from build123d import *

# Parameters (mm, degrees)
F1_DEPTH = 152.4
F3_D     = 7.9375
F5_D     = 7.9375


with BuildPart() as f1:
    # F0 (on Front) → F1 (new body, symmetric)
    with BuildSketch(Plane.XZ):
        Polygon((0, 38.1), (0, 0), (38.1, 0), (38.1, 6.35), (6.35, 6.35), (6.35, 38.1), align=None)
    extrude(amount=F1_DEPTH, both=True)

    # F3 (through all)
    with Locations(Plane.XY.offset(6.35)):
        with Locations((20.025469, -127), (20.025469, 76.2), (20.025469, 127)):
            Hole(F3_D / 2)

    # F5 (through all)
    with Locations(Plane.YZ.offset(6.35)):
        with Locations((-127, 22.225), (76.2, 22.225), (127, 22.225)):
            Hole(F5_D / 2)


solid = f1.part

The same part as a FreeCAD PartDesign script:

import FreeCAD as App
import Part
import Sketcher

V = App.Vector
Q = App.Units.Quantity


def add_polygon(sketch, points):
    """Adds a closed chain of lines whose ends are joined by coincident constraints."""
    first, n = sketch.GeometryCount, len(points)
    for a, b in zip(points, points[1:] + points[:1]):
        sketch.addGeometry(Part.LineSegment(App.Vector(*a, 0), App.Vector(*b, 0)), False)
    for i in range(n):
        sketch.addConstraint(Sketcher.Constraint("Coincident", first + i, 2, first + (i + 1) % n, 1))

doc = App.newDocument("Part")
body = doc.addObject("PartDesign::Body", "Body")

# Sketch on XZ plane
sketch1 = doc.addObject("Sketcher::SketchObject", "Sketch")
body.addObject(sketch1)
sketch1.AttachmentSupport = (doc.XZ_Plane, [""])
sketch1.MapMode = "FlatFace"
add_polygon(sketch1, [(0, 38.1), (0, 0), (38.1, 0), (38.1, 6.35), (6.35, 6.35), (6.35, 38.1)])  # lines 0-5
sketch1.addConstraint(Sketcher.Constraint("Vertical", 0))
sketch1.addConstraint(Sketcher.Constraint("Horizontal", 1))
sketch1.addConstraint(Sketcher.Constraint("Vertical", 2))
sketch1.addConstraint(Sketcher.Constraint("Horizontal", 3))
sketch1.addConstraint(Sketcher.Constraint("Vertical", 4))
sketch1.addConstraint(Sketcher.Constraint("Horizontal", 5))
sketch1.addConstraint(Sketcher.Constraint("Coincident", 0, 2, -1, 1))
sketch1.addConstraint(Sketcher.Constraint("Equal", 1, 0))
sketch1.addConstraint(Sketcher.Constraint("Equal", 5, 2))
sketch1.addConstraint(Sketcher.Constraint("DistanceX", 1, 1, 1, 2, Q("1.5 in")))
sketch1.addConstraint(Sketcher.Constraint("DistanceX", 3, 2, 3, 1, Q("1.25 in")))
pad1 = doc.addObject("PartDesign::Pad", "Pad")
body.addObject(pad1)
pad1.Profile = sketch1
pad1.Length = Q("12 in")
pad1.Midplane = True

# Sketch on XY plane
sketch2 = doc.addObject("Sketcher::SketchObject", "Sketch001")
body.addObject(sketch2)
sketch2.AttachmentSupport = (doc.XY_Plane, [""])
sketch2.MapMode = "FlatFace"
sketch2.AttachmentOffset = App.Placement(V(0, 0, 0.25 * 25.4), App.Rotation())
sketch2.addGeometry(Part.Circle(V(20.025469, -127, 0), V(0, 0, 1), 3.96875), False)
sketch2.addGeometry(Part.Circle(V(20.025469, 76.2, 0), V(0, 0, 1), 3.96875), False)
sketch2.addGeometry(Part.Circle(V(20.025469, 127, 0), V(0, 0, 1), 3.96875), False)
sketch2.addConstraint(Sketcher.Constraint("Equal", 0, 1))
sketch2.addConstraint(Sketcher.Constraint("Equal", 1, 2))
sketch2.addConstraint(Sketcher.Constraint("Symmetric", 0, 3, 2, 3, -1))
sketch2.addConstraint(Sketcher.Constraint("Vertical", 0, 3, 1, 3))
sketch2.addConstraint(Sketcher.Constraint("Diameter", 0, Q("0.3125 in")))
sketch2.addConstraint(Sketcher.Constraint("DistanceY", 0, 3, -1, 1, Q("5 in")))
sketch2.addConstraint(Sketcher.Constraint("DistanceY", -1, 1, 1, 3, Q("3 in")))
sketch2.addConstraint(Sketcher.Constraint("DistanceX", -1, 1, 0, 3, Q("20.025469 mm")))
doc.recompute()
hole = doc.addObject("PartDesign::Hole", "Hole")
body.addObject(hole)
hole.Profile = sketch2
hole.ThreadType = "None"
hole.Diameter = Q("0.3125 in")
hole.DepthType = "ThroughAll"

# Sketch on YZ plane
sketch3 = doc.addObject("Sketcher::SketchObject", "Sketch002")
body.addObject(sketch3)
sketch3.AttachmentSupport = (doc.YZ_Plane, [""])
sketch3.MapMode = "FlatFace"
sketch3.AttachmentOffset = App.Placement(V(0, 0, 0.25 * 25.4), App.Rotation())
sketch3.addGeometry(Part.Circle(V(-127, 22.225, 0), V(0, 0, 1), 3.96875), False)
sketch3.addGeometry(Part.Circle(V(76.2, 22.225, 0), V(0, 0, 1), 3.96875), False)
sketch3.addGeometry(Part.Circle(V(127, 22.225, 0), V(0, 0, 1), 3.96875), False)
sketch3.addConstraint(Sketcher.Constraint("Equal", 0, 1))
sketch3.addConstraint(Sketcher.Constraint("Equal", 1, 2))
sketch3.addConstraint(Sketcher.Constraint("Symmetric", 0, 3, 2, 3, -2))
sketch3.addConstraint(Sketcher.Constraint("Horizontal", 0, 3, 1, 3))
sketch3.addConstraint(Sketcher.Constraint("Diameter", 0, Q("0.3125 in")))
sketch3.addConstraint(Sketcher.Constraint("DistanceX", 0, 3, -1, 1, Q("5 in")))
sketch3.addConstraint(Sketcher.Constraint("DistanceX", -1, 1, 1, 3, Q("3 in")))
sketch3.addConstraint(Sketcher.Constraint("DistanceY", -1, 1, 0, 3, Q("0.875 in")))
doc.recompute()
hole2 = doc.addObject("PartDesign::Hole", "Hole001")
body.addObject(hole2)
hole2.Profile = sketch3
hole2.ThreadType = "None"
hole2.Diameter = Q("0.3125 in")
hole2.DepthType = "ThroughAll"

doc.recompute()
